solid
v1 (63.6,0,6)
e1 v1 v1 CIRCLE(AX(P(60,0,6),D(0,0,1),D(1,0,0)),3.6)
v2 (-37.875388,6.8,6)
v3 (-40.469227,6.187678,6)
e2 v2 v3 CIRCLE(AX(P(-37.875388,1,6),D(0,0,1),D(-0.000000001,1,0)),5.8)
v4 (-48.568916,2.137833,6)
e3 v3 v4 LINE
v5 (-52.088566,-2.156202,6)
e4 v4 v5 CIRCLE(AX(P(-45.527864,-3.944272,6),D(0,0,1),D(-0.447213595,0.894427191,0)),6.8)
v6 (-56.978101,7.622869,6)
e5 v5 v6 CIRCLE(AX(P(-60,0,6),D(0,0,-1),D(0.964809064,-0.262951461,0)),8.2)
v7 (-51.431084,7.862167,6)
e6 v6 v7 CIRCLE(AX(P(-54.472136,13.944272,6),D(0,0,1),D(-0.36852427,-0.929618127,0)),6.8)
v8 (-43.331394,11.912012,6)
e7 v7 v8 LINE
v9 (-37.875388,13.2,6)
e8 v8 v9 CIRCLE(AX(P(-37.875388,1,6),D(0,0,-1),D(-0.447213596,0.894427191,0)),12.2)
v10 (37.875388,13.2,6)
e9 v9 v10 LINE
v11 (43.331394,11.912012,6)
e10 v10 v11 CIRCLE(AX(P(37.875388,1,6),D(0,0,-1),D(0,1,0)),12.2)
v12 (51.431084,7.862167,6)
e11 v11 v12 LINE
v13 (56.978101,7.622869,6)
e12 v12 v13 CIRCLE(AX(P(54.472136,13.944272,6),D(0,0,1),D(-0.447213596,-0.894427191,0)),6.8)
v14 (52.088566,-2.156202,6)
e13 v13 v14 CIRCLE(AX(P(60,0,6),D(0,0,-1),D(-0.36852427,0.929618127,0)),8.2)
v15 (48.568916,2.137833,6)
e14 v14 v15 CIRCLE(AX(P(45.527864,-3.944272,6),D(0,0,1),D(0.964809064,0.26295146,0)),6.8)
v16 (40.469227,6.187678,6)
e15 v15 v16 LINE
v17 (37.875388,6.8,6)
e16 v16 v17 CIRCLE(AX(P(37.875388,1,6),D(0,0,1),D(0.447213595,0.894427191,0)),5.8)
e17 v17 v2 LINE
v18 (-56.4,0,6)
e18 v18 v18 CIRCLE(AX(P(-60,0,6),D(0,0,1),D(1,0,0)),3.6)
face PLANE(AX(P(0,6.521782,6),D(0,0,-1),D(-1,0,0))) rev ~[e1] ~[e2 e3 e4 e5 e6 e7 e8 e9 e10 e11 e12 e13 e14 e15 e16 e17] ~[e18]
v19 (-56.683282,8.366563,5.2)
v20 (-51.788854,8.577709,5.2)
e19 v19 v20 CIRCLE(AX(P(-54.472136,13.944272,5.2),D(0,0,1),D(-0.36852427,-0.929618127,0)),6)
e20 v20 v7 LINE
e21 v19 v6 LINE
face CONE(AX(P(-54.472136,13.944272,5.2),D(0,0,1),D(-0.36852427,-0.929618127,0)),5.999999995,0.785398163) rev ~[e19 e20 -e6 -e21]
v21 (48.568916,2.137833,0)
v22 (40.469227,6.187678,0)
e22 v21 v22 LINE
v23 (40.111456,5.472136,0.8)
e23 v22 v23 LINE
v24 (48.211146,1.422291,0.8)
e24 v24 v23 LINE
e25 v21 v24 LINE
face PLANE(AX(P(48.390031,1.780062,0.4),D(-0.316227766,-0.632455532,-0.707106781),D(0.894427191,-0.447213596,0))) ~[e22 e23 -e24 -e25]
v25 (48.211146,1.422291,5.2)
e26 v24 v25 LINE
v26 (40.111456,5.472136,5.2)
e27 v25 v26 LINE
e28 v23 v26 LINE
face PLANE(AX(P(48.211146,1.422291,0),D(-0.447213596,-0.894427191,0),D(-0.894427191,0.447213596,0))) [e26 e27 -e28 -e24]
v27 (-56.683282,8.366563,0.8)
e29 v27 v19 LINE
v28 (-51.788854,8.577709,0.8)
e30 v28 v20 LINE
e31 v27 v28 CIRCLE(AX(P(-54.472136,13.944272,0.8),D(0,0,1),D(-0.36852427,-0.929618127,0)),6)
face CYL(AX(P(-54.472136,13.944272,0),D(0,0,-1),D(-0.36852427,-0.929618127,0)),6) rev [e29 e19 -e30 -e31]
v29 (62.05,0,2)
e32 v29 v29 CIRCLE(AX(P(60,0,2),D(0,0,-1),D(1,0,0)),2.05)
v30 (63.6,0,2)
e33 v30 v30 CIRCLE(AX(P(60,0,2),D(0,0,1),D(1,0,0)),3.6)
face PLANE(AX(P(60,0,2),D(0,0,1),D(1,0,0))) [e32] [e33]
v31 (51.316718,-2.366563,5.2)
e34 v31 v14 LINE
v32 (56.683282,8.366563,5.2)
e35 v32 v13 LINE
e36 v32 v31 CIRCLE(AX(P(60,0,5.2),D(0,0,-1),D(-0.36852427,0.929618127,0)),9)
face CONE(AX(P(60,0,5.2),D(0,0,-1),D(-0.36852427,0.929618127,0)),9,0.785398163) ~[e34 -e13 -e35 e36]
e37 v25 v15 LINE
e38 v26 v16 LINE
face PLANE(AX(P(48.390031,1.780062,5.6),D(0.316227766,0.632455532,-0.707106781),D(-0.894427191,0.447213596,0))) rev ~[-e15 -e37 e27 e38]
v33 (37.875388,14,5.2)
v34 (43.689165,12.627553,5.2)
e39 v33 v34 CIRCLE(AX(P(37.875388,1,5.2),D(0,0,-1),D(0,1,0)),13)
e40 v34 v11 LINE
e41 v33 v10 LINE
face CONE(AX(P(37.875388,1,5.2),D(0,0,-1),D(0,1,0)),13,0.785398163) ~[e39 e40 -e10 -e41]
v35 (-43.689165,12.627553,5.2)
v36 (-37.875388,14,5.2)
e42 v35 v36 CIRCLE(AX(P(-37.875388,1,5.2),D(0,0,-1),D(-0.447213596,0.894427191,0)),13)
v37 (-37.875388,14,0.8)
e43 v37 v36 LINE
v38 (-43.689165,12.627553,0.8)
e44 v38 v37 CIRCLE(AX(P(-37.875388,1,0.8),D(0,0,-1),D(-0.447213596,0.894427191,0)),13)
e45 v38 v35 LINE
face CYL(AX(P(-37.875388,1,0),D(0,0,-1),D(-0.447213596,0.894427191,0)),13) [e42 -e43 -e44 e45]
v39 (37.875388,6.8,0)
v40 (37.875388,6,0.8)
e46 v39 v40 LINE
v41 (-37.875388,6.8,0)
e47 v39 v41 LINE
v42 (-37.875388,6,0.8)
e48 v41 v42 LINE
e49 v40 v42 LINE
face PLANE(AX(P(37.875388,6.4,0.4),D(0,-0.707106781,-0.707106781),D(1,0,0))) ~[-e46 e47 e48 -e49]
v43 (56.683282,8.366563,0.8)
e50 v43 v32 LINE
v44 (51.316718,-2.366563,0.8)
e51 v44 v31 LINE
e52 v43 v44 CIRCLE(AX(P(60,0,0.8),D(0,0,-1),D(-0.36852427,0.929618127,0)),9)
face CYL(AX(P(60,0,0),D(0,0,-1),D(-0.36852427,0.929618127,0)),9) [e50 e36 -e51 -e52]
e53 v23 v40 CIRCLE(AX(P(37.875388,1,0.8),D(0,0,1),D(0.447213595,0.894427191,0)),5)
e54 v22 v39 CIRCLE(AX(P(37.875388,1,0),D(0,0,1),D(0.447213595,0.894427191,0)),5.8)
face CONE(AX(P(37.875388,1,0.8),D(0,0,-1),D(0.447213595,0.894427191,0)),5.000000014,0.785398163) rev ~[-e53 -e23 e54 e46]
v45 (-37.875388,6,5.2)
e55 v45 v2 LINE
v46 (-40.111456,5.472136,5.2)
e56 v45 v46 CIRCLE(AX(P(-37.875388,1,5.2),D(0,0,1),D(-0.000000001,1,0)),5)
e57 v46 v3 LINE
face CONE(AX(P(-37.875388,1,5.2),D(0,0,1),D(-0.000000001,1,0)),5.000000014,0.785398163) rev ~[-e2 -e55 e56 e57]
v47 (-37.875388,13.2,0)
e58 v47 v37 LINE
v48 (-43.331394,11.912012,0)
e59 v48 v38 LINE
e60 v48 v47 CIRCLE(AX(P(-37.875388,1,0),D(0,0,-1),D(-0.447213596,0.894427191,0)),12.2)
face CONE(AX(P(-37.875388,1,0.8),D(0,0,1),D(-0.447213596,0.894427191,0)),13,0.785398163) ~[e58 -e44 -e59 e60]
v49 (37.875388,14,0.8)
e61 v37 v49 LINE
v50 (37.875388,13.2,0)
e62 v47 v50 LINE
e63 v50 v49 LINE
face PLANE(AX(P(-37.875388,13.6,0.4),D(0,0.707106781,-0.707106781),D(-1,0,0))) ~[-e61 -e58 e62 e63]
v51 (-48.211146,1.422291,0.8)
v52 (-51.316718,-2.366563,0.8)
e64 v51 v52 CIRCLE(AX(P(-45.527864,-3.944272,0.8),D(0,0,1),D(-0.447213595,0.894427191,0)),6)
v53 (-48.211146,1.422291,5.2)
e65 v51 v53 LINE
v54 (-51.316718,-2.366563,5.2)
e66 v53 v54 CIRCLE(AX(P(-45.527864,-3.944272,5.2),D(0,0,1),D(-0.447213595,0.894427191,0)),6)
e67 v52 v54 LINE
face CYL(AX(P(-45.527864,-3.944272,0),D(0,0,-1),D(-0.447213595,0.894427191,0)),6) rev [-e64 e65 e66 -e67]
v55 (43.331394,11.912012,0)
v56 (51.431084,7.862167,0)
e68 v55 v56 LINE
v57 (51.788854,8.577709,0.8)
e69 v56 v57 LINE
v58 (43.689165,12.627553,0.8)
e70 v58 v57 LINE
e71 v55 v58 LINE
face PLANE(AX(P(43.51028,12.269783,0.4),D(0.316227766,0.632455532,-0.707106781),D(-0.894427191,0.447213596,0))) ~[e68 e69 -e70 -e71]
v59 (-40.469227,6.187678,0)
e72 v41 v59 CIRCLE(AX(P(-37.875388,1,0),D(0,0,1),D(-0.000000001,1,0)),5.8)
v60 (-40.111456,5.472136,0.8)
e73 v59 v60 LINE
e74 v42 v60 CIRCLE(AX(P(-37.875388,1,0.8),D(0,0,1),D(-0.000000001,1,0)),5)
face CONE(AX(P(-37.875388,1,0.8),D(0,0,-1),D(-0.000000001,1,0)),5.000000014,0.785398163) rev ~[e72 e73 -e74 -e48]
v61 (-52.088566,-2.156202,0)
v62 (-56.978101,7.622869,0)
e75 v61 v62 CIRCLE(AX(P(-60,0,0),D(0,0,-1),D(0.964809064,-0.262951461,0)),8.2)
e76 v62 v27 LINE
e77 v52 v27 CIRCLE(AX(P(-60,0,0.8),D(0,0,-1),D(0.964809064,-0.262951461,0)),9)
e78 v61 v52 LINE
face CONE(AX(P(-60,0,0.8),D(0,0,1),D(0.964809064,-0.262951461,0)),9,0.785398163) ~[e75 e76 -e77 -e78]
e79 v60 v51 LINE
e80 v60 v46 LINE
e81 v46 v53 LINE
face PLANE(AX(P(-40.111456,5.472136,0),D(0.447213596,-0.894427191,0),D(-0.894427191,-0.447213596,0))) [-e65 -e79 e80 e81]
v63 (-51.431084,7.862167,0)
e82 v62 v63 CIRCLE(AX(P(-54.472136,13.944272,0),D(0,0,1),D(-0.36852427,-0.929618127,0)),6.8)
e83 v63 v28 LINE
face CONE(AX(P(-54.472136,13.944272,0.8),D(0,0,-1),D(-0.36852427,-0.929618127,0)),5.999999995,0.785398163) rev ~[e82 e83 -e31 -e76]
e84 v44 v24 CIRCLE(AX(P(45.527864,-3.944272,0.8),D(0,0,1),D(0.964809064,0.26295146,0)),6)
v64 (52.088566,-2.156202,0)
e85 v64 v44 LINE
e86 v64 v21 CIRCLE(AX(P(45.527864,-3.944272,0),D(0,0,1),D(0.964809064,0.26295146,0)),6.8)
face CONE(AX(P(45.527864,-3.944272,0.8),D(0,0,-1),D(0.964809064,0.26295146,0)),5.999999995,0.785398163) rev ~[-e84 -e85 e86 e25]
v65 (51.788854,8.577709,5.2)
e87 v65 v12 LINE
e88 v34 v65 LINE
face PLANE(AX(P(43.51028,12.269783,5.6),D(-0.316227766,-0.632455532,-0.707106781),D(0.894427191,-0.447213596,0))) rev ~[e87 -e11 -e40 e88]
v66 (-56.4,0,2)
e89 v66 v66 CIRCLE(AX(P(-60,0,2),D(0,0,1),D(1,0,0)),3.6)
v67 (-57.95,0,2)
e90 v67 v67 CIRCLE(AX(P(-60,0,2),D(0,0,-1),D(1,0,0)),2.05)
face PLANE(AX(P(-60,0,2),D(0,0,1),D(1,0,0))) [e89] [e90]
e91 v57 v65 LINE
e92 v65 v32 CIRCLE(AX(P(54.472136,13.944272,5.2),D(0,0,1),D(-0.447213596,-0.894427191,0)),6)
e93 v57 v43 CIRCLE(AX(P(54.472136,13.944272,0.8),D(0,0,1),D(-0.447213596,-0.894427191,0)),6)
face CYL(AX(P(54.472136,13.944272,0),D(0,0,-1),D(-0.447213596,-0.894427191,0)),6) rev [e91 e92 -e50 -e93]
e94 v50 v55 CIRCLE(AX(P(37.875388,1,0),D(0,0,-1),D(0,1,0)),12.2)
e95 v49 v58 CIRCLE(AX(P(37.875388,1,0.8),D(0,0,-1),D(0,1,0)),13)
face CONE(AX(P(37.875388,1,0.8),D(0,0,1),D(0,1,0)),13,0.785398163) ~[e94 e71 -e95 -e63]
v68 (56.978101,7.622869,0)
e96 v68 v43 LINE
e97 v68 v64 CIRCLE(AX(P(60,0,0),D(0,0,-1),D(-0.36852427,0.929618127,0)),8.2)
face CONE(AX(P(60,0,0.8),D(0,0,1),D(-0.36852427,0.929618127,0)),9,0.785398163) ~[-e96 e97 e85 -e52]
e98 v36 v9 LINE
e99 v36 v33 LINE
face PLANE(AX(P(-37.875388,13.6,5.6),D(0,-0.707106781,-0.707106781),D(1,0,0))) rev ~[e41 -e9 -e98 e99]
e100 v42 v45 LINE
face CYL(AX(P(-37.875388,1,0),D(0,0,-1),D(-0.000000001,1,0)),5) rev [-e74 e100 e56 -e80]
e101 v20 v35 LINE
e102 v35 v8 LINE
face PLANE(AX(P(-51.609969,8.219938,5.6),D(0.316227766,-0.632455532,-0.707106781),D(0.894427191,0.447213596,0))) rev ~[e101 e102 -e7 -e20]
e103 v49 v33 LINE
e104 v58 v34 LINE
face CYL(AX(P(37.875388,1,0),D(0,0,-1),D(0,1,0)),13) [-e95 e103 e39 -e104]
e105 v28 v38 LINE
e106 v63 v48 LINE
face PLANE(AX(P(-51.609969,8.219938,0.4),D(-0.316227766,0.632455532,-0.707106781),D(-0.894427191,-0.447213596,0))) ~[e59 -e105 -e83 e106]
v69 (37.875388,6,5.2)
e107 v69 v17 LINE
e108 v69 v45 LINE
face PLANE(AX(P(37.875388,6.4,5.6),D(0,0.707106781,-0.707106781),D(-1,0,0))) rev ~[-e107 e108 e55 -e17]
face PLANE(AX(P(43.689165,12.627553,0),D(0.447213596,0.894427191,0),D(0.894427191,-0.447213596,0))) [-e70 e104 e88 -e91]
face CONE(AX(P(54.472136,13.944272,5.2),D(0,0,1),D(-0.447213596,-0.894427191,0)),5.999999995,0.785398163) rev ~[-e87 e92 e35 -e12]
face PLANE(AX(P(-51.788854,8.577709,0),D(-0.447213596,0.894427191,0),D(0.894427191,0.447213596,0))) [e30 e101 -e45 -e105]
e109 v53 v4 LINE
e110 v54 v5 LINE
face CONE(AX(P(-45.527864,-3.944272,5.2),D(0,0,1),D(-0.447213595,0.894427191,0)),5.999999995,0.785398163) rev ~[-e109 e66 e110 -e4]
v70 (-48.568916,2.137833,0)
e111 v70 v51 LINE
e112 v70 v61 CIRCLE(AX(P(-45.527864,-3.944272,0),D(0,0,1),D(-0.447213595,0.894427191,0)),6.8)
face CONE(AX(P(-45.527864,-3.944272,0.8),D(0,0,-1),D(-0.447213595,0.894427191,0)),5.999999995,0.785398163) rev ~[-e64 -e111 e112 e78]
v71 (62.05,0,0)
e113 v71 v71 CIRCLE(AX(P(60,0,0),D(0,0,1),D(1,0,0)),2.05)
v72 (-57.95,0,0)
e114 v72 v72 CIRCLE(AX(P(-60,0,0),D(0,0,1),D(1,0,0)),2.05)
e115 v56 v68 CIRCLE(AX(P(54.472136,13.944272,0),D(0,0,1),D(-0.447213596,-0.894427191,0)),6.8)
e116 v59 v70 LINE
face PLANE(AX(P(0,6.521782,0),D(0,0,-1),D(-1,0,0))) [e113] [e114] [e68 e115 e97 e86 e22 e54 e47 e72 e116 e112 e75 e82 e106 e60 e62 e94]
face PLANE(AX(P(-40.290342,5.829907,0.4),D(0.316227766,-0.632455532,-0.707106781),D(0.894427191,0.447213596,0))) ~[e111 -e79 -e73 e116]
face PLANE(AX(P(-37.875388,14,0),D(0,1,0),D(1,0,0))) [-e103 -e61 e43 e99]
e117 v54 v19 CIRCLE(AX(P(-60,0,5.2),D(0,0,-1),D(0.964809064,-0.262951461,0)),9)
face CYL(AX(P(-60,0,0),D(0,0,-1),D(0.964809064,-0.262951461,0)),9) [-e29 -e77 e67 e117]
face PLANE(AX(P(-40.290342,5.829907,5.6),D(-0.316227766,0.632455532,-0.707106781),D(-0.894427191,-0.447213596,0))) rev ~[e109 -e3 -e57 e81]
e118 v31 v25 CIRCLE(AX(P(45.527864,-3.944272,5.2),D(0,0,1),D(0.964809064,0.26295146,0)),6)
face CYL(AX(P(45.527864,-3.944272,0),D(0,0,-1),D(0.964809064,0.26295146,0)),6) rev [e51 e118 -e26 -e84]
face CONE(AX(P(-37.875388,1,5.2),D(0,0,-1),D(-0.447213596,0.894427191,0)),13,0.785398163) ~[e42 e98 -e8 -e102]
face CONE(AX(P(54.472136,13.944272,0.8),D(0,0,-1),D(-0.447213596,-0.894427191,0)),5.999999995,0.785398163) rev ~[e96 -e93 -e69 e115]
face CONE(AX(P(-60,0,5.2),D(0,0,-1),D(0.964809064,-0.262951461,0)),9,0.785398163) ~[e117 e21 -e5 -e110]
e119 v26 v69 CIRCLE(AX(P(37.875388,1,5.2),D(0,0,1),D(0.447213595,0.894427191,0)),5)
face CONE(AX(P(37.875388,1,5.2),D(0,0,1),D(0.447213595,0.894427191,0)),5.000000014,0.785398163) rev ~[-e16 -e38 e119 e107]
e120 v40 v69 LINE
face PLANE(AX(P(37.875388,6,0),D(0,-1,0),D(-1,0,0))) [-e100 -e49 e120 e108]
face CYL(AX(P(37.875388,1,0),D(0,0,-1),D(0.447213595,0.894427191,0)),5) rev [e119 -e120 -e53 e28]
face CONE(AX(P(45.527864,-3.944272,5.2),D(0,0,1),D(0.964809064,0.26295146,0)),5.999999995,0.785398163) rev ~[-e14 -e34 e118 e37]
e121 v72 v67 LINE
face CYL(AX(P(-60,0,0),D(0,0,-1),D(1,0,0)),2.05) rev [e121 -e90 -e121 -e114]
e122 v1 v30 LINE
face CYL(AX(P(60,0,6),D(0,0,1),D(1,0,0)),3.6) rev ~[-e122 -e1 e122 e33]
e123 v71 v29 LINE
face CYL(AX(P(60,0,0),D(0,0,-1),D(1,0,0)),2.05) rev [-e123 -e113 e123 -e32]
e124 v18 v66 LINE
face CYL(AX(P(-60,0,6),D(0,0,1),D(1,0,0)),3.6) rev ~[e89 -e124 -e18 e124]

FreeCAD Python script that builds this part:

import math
import FreeCAD as App
import Part
import Sketcher

V = App.Vector
Q = App.Units.Quantity


def edges_at(feature, points):
    """Names of the edges that pass closest to the given points."""
    edges = feature.Shape.Edges
    near = lambda p: min(range(len(edges)), key=lambda i: edges[i].distToShape(Part.Vertex(*p))[0])
    return sorted({f"Edge{near(p) + 1}" for p in points})

doc = App.newDocument("Part")
params = doc.addObject("Spreadsheet::Sheet", "Params")
for row, (alias, value) in enumerate([
    ("sketch1_radius", "6 mm"),
    ("sketch1_radius2", "9 mm"),
    ("sketch1_radius3", "5 mm"),
    ("sketch1_radius4", "13 mm"),
    ("sketch1_diameter", "4.1 mm"),
    ("pad1_length", "6 mm"),
    ("sketch2_diameter", "7.2 mm"),
    ("pocket1_length", "4 mm"),
    ("chamfer_size", "0.8 mm"),
], start=1):
    params.set(f"A{row}", alias)
    params.set(f"B{row}", "=" + value)
    params.setAlias(f"B{row}", alias)

body = doc.addObject("PartDesign::Body", "Body")

sketch1 = body.newObject("Sketcher::SketchObject", "Sketch")
sketch1.AttachmentSupport = (doc.getObject("XY_Plane"), [""])
sketch1.MapMode = "FlatFace"
sketch1.addGeometry(Part.LineSegment(V(-43.7, 12.6, 0), V(-51.8, 8.6, 0)), False)
sketch1.addGeometry(Part.ArcOfCircle(Part.Circle(V(-54.5, 13.9, 0), V(0, 0, 1), 6), math.radians(-112), math.radians(-63)), False)
sketch1.addGeometry(Part.ArcOfCircle(Part.Circle(V(-60, 0, 0), V(0, 0, 1), 9), math.radians(68), math.radians(345)), False)
sketch1.addGeometry(Part.ArcOfCircle(Part.Circle(V(-45.5, -3.9, 0), V(0, 0, 1), 6), math.radians(117), math.radians(165)), False)
sketch1.addGeometry(Part.LineSegment(V(-48.2, 1.4, 0), V(-40.1, 5.5, 0)), False)
sketch1.addGeometry(Part.ArcOfCircle(Part.Circle(V(-37.9, 1, 0), V(0, 0, 1), 5), math.radians(90), math.radians(117)), False)
sketch1.addGeometry(Part.LineSegment(V(-37.9, 6, 0), V(37.9, 6, 0)), False)
sketch1.addGeometry(Part.ArcOfCircle(Part.Circle(V(37.9, 1, 0), V(0, 0, 1), 5), math.radians(63), math.radians(90)), False)
sketch1.addGeometry(Part.LineSegment(V(40.1, 5.5, 0), V(48.2, 1.4, 0)), False)
sketch1.addGeometry(Part.ArcOfCircle(Part.Circle(V(45.5, -3.9, 0), V(0, 0, 1), 6), math.radians(15), math.radians(63)), False)
sketch1.addGeometry(Part.ArcOfCircle(Part.Circle(V(60, 0, 0), V(0, 0, 1), 9), math.radians(-165), math.radians(112)), False)
sketch1.addGeometry(Part.ArcOfCircle(Part.Circle(V(54.5, 13.9, 0), V(0, 0, 1), 6), math.radians(-117), math.radians(-68)), False)
sketch1.addGeometry(Part.LineSegment(V(51.8, 8.6, 0), V(43.7, 12.6, 0)), False)
sketch1.addGeometry(Part.ArcOfCircle(Part.Circle(V(37.9, 1, 0), V(0, 0, 1), 13), math.radians(63), math.radians(90)), False)
sketch1.addGeometry(Part.LineSegment(V(37.9, 14, 0), V(-37.9, 14, 0)), False)
sketch1.addGeometry(Part.ArcOfCircle(Part.Circle(V(-37.9, 1, 0), V(0, 0, 1), 13), math.radians(90), math.radians(117)), False)
sketch1.addGeometry(Part.Circle(V(60, 0, 0), V(0, 0, 1), 2), False)
sketch1.addGeometry(Part.Circle(V(-60, 0, 0), V(0, 0, 1), 2), False)
sketch1.addConstraint(Sketcher.Constraint("Tangent", 0, 2, 1, 2))
sketch1.addConstraint(Sketcher.Constraint("Tangent", 1, 1, 2, 1))
sketch1.addConstraint(Sketcher.Constraint("Tangent", 2, 2, 3, 2))
sketch1.addConstraint(Sketcher.Constraint("Tangent", 3, 1, 4, 1))
sketch1.addConstraint(Sketcher.Constraint("Tangent", 4, 2, 5, 2))
sketch1.addConstraint(Sketcher.Constraint("Tangent", 5, 1, 6, 1))
sketch1.addConstraint(Sketcher.Constraint("Tangent", 6, 2, 7, 2))
sketch1.addConstraint(Sketcher.Constraint("Tangent", 7, 1, 8, 1))
sketch1.addConstraint(Sketcher.Constraint("Tangent", 8, 2, 9, 2))
sketch1.addConstraint(Sketcher.Constraint("Tangent", 9, 1, 10, 1))
sketch1.addConstraint(Sketcher.Constraint("Tangent", 10, 2, 11, 2))
sketch1.addConstraint(Sketcher.Constraint("Tangent", 11, 1, 12, 1))
sketch1.addConstraint(Sketcher.Constraint("Tangent", 12, 2, 13, 1))
sketch1.addConstraint(Sketcher.Constraint("Tangent", 13, 2, 14, 1))
sketch1.addConstraint(Sketcher.Constraint("Tangent", 14, 2, 15, 1))
sketch1.addConstraint(Sketcher.Constraint("Tangent", 15, 2, 0, 1))
sketch1.addConstraint(Sketcher.Constraint("Horizontal", 6))
sketch1.addConstraint(Sketcher.Constraint("Horizontal", 14))
sketch1.addConstraint(Sketcher.Constraint("Coincident", 13, 3, 7, 3))
sketch1.addConstraint(Sketcher.Constraint("Coincident", 15, 3, 5, 3))
sketch1.addConstraint(Sketcher.Constraint("Coincident", 16, 3, 10, 3))
sketch1.addConstraint(Sketcher.Constraint("Coincident", 17, 3, 2, 3))
sketch1.addConstraint(Sketcher.Constraint("Equal", 1, 3))
sketch1.addConstraint(Sketcher.Constraint("Equal", 5, 7))
sketch1.addConstraint(Sketcher.Constraint("Equal", 3, 9))
sketch1.addConstraint(Sketcher.Constraint("Equal", 2, 10))
sketch1.addConstraint(Sketcher.Constraint("Equal", 9, 11))
sketch1.addConstraint(Sketcher.Constraint("Equal", 16, 17))
sketch1.addConstraint(Sketcher.Constraint("Symmetric", 2, 3, 10, 3, -1, 1))
sketch1.addConstraint(Sketcher.Constraint("Symmetric", 3, 3, 9, 3, -2))
sketch1.addConstraint(Sketcher.Constraint("Symmetric", 0, 2, 11, 1, -2))
sketch1.addConstraint(Sketcher.Constraint("Parallel", 0, 4))
sketch1.addConstraint(Sketcher.Constraint("Equal", 0, 4))
sketch1.addConstraint(Sketcher.Constraint("Radius", 1, Q("6 mm")))
sketch1.addConstraint(Sketcher.Constraint("Radius", 2, Q("9 mm")))
sketch1.addConstraint(Sketcher.Constraint("Radius", 5, Q("5 mm")))
sketch1.addConstraint(Sketcher.Constraint("Radius", 13, Q("13 mm")))
sketch1.addConstraint(Sketcher.Constraint("Diameter", 16, Q("4.1 mm")))
sketch1.addConstraint(Sketcher.Constraint("DistanceX", 2, 3, -1, 1, Q("60 mm")))
sketch1.addConstraint(Sketcher.Constraint("DistanceY", -1, 1, 5, 3, Q("1 mm")))
sketch1.addConstraint(Sketcher.Constraint("DistanceX", 1, 3, 9, 3, Q("100 mm")))
sketch1.setExpression("Constraints[33]", "Params.sketch1_radius")
sketch1.setExpression("Constraints[34]", "Params.sketch1_radius2")
sketch1.setExpression("Constraints[35]", "Params.sketch1_radius3")
sketch1.setExpression("Constraints[36]", "Params.sketch1_radius4")
sketch1.setExpression("Constraints[37]", "Params.sketch1_diameter")
pad1 = body.newObject("PartDesign::Pad", "Pad")
pad1.Profile = sketch1
pad1.setExpression("Length", "Params.pad1_length")

sketch2 = body.newObject("Sketcher::SketchObject", "Sketch001")
sketch2.AttachmentSupport = (doc.getObject("XY_Plane"), [""])
sketch2.MapMode = "FlatFace"
sketch2.AttachmentOffset = App.Placement(V(0, 0, 6), App.Rotation())
sketch2.addGeometry(Part.Circle(V(-60, 0, 0), V(0, 0, 1), 3.6), False)
sketch2.addGeometry(Part.Circle(V(60, 0, 0), V(0, 0, 1), 3.6), False)
sketch2.addConstraint(Sketcher.Constraint("Equal", 0, 1))
sketch2.addConstraint(Sketcher.Constraint("Symmetric", 0, 3, 1, 3, -1, 1))
sketch2.addConstraint(Sketcher.Constraint("PointOnObject", 0, 3, -1))
sketch2.addConstraint(Sketcher.Constraint("Diameter", 0, Q("7.2 mm")))
sketch2.addConstraint(Sketcher.Constraint("DistanceX", 0, 3, -1, 1, Q("60 mm")))
sketch2.setExpression("Constraints[3]", "Params.sketch2_diameter")
pocket1 = body.newObject("PartDesign::Pocket", "Pocket")
pocket1.Profile = sketch2
pocket1.setExpression("Length", "Params.pocket1_length")
doc.recompute()

chamfer = body.newObject("PartDesign::Chamfer", "Chamfer")
chamfer.Base = (pocket1, edges_at(pocket1, [
    (-40.862, 13.652, 6),
    (47.739, 10.603, 0),
    (54.214, 7.95, 0),
    (68.05, -4.025, 0),
    (-47.739, 10.603, 6),
    (50.168, -0.141, 0),
    (44.161, 3.447, 0),
    (39.024, 5.866, 0),
    (0, 6, 0),
    (-39.024, 5.866, 0),
    (-44.161, 3.447, 0),
    (-50.168, -0.141, 0),
    (-68.05, -4.025, 0),
    (-54.214, 7.95, 0),
    (-47.739, 10.603, 0),
    (-54.214, 7.95, 6),
    (-40.862, 13.652, 0),
    (0, 14, 0),
    (40.862, 13.652, 0),
    (-68.05, -4.025, 6),
    (-50.168, -0.141, 6),
    (-44.161, 3.447, 6),
    (-39.024, 5.866, 6),
    (0, 6, 6),
    (39.024, 5.866, 6),
    (44.161, 3.447, 6),
    (40.862, 13.652, 6),
    (50.168, -0.141, 6),
    (68.05, -4.025, 6),
    (54.214, 7.95, 6),
    (47.739, 10.603, 6),
    (0, 14, 6),
]))
chamfer.setExpression("Size", "Params.chamfer_size")

doc.recompute()
